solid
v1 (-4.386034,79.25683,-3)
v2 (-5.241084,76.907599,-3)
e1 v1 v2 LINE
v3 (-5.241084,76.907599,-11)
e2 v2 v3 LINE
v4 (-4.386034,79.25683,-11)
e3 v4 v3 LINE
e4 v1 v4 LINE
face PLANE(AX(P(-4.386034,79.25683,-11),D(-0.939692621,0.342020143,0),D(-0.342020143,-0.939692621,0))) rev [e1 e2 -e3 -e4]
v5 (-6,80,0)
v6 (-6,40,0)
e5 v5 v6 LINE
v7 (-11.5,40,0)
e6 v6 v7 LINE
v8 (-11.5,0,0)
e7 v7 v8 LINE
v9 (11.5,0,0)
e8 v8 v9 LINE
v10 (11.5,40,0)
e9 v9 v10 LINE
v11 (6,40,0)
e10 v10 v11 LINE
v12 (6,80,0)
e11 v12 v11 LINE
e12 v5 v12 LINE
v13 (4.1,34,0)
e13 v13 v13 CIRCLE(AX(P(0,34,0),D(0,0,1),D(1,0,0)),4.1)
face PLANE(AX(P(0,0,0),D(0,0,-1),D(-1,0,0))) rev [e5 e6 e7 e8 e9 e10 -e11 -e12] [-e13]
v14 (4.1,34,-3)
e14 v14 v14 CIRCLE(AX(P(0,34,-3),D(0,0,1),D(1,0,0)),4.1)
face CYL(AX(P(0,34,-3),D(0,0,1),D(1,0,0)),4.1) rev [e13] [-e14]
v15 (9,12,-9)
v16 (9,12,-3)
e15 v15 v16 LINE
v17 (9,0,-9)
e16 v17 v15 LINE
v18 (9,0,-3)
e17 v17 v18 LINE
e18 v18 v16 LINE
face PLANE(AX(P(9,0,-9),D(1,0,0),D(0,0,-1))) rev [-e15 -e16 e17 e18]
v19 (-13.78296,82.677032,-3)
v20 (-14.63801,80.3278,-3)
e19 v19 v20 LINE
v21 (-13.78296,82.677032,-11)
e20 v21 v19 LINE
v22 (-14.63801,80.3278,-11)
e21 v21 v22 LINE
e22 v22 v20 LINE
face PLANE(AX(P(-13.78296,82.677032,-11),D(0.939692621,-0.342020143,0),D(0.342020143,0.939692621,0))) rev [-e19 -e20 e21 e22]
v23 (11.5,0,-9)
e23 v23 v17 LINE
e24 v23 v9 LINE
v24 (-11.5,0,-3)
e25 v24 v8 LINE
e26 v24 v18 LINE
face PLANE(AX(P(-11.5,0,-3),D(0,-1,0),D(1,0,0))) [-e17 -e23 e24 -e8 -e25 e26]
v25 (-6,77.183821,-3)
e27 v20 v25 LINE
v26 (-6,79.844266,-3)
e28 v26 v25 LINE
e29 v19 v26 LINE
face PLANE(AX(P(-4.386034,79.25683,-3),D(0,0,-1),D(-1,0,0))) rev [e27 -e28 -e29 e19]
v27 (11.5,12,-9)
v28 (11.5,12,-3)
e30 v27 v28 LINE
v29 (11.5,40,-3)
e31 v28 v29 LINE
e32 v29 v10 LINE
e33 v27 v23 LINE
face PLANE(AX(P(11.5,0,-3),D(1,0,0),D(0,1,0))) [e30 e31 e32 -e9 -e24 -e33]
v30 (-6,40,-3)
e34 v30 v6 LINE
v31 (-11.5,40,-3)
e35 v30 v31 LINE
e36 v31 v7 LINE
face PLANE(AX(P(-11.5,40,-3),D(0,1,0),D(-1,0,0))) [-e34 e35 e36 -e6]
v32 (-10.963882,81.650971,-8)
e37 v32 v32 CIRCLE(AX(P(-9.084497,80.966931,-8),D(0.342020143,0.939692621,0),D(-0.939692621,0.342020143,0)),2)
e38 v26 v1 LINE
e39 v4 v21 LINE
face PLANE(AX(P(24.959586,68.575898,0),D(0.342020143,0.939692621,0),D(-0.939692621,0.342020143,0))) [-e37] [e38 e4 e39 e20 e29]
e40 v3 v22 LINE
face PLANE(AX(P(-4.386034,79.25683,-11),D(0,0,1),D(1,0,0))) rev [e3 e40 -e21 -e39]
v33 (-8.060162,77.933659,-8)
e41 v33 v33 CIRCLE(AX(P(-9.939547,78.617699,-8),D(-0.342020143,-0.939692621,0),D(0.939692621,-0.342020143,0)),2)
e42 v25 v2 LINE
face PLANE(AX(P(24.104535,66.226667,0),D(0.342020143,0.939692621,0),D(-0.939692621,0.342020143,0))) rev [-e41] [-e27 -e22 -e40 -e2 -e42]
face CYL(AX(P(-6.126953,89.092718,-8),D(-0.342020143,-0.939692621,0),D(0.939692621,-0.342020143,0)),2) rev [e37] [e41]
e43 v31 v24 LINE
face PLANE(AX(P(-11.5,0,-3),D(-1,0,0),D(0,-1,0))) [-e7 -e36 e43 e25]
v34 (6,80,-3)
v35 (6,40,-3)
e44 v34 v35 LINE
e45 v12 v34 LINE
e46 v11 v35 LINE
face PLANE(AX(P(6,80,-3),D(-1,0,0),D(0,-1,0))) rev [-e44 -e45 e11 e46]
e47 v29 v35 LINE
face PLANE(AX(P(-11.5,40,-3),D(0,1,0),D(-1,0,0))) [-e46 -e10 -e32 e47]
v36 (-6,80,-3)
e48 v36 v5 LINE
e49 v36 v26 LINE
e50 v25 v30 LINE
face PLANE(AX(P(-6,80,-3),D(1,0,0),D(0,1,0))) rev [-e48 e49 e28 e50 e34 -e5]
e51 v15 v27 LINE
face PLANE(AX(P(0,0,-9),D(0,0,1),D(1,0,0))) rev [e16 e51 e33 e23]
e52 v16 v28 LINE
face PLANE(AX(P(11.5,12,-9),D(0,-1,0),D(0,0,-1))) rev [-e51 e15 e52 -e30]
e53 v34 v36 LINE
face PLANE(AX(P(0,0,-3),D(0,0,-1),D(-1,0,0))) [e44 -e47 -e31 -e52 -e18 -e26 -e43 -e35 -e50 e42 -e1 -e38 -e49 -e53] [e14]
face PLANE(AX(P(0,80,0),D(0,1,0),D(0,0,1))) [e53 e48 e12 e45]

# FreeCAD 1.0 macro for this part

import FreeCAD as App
import Part
import Sketcher
from FreeCAD import Vector


def add_polygon(sketch, points):
    """Adds a closed chain of lines whose ends are joined by coincident constraints."""
    first, n = sketch.GeometryCount, len(points)
    for a, b in zip(points, points[1:] + points[:1]):
        sketch.addGeometry(Part.LineSegment(App.Vector(*a, 0), App.Vector(*b, 0)), False)
    for i in range(n):
        sketch.addConstraint(Sketcher.Constraint("Coincident", first + i, 2, first + (i + 1) % n, 1))

doc = App.newDocument("Part")
params = doc.addObject("Spreadsheet::Sheet", "Params")
for row, (alias, value) in enumerate([
    ("sketch1_width", "23 mm"),
    ("sketch1_height", "40 mm"),
    ("pad1_length", "3 mm"),
    ("sketch2_diameter", "8.2 mm"),
    ("pocket1_length", "3 mm"),
    ("sketch3_width", "12 mm"),
    ("sketch3_height", "3 mm"),
    ("pad2_length", "40 mm"),
    ("sketch4_height", "12 mm"),
    ("sketch4_width", "2.5 mm"),
    ("pad3_length", "6 mm"),
    ("sketch5_width", "8 mm"),
    ("sketch5_height", "10 mm"),
    ("pad4_length", "2.5 mm"),
    ("sketch6_diameter", "4 mm"),
], start=1):
    params.set(f"A{row}", alias)
    params.set(f"B{row}", "=" + value)
    params.setAlias(f"B{row}", alias)

body = doc.addObject("PartDesign::Body", "Body")

sketch1 = body.newObject("Sketcher::SketchObject", "Sketch")
sketch1.AttachmentSupport = (doc.getObject("XY_Plane"), [""])
sketch1.MapMode = "FlatFace"
add_polygon(sketch1, [(-11.5, 40), (-11.5, 0), (11.5, 0), (11.5, 40)])
sketch1.addConstraint(Sketcher.Constraint("Vertical", 0))
sketch1.addConstraint(Sketcher.Constraint("Horizontal", 1))
sketch1.addConstraint(Sketcher.Constraint("Vertical", 2))
sketch1.addConstraint(Sketcher.Constraint("Horizontal", 3))
sketch1.addConstraint(Sketcher.Constraint("Symmetric", 0, 2, 1, 2, -1, 1))
sketch1.addConstraint(Sketcher.Constraint("DistanceX", 1, 1, 1, 2, 23.0))
sketch1.addConstraint(Sketcher.Constraint("DistanceY", 0, 2, 0, 1, 40.0))
sketch1.setExpression("Constraints[9]", "Params.sketch1_width")
sketch1.setExpression("Constraints[10]", "Params.sketch1_height")
pad1 = body.newObject("PartDesign::Pad", "Pad")
pad1.Profile = sketch1
pad1.setExpression("Length", "Params.pad1_length")
pad1.Reversed = True

sketch2 = body.newObject("Sketcher::SketchObject", "Sketch001")
sketch2.AttachmentSupport = (doc.getObject("XY_Plane"), [""])
sketch2.MapMode = "FlatFace"
sketch2.addGeometry(Part.Circle(Vector(0, 34, 0), Vector(0, 0, 1), 4.1), False)
sketch2.addConstraint(Sketcher.Constraint("PointOnObject", 0, 3, -2))
sketch2.addConstraint(Sketcher.Constraint("Diameter", 0, 8.2))
sketch2.addConstraint(Sketcher.Constraint("DistanceY", -1, 1, 0, 3, 34.0))
sketch2.setExpression("Constraints[1]", "Params.sketch2_diameter")
pocket1 = body.newObject("PartDesign::Pocket", "Pocket")
pocket1.Profile = sketch2
pocket1.setExpression("Length", "Params.pocket1_length")

sketch3 = body.newObject("Sketcher::SketchObject", "Sketch002")
sketch3.AttachmentSupport = (doc.getObject("XZ_Plane"), [""])
sketch3.MapMode = "FlatFace"
sketch3.AttachmentOffset = App.Placement(Vector(0, 0, -40), App.Rotation())
add_polygon(sketch3, [(-6, -3), (-6, 0), (6, 0), (6, -3)])
sketch3.addConstraint(Sketcher.Constraint("Vertical", 0))
sketch3.addConstraint(Sketcher.Constraint("Horizontal", 1))
sketch3.addConstraint(Sketcher.Constraint("Vertical", 2))
sketch3.addConstraint(Sketcher.Constraint("Horizontal", 3))
sketch3.addConstraint(Sketcher.Constraint("Symmetric", 0, 2, 1, 2, -1, 1))
sketch3.addConstraint(Sketcher.Constraint("DistanceX", 1, 1, 1, 2, 12.0))
sketch3.addConstraint(Sketcher.Constraint("DistanceY", 0, 1, 0, 2, 3.0))
sketch3.setExpression("Constraints[9]", "Params.sketch3_width")
sketch3.setExpression("Constraints[10]", "Params.sketch3_height")
pad2 = body.newObject("PartDesign::Pad", "Pad001")
pad2.Profile = sketch3
pad2.setExpression("Length", "Params.pad2_length")
pad2.Reversed = True

sketch4 = body.newObject("Sketcher::SketchObject", "Sketch003")
sketch4.AttachmentSupport = (doc.getObject("XY_Plane"), [""])
sketch4.MapMode = "FlatFace"
sketch4.AttachmentOffset = App.Placement(Vector(0, 0, -3), App.Rotation())
add_polygon(sketch4, [(11.5, 12), (11.5, 0), (9, 0), (9, 12)])
sketch4.addConstraint(Sketcher.Constraint("Vertical", 0))
sketch4.addConstraint(Sketcher.Constraint("Horizontal", 1))
sketch4.addConstraint(Sketcher.Constraint("Vertical", 2))
sketch4.addConstraint(Sketcher.Constraint("Horizontal", 3))
sketch4.addConstraint(Sketcher.Constraint("PointOnObject", 0, 2, -1))
sketch4.addConstraint(Sketcher.Constraint("DistanceY", 0, 2, 0, 1, 12.0))
sketch4.addConstraint(Sketcher.Constraint("DistanceX", 1, 2, 1, 1, 2.5))
sketch4.addConstraint(Sketcher.Constraint("DistanceX", -1, 1, 1, 2, 9.0))
sketch4.setExpression("Constraints[9]", "Params.sketch4_height")
sketch4.setExpression("Constraints[10]", "Params.sketch4_width")
pad3 = body.newObject("PartDesign::Pad", "Pad002")
pad3.Profile = sketch4
pad3.setExpression("Length", "Params.pad3_length")
pad3.Reversed = True

sketch5 = body.newObject("Sketcher::SketchObject", "Sketch004")
sketch5.Placement = App.Placement(Vector(24.104535, 66.226667, 0), App.Rotation(Vector(0, 0, -1), Vector(-0.939692621, 0.342020143, 0), Vector(0.342020143, 0.939692621, 0), "ZXY"))
add_polygon(sketch5, [(3, 41.228956), (3, 31.228956), (11, 31.228956), (11, 41.228956)])
sketch5.addConstraint(Sketcher.Constraint("Vertical", 0))
sketch5.addConstraint(Sketcher.Constraint("Horizontal", 1))
sketch5.addConstraint(Sketcher.Constraint("Vertical", 2))
sketch5.addConstraint(Sketcher.Constraint("Horizontal", 3))
sketch5.addConstraint(Sketcher.Constraint("DistanceX", 1, 1, 1, 2, 8.0))
sketch5.addConstraint(Sketcher.Constraint("DistanceY", 0, 2, 0, 1, 10.0))
sketch5.addConstraint(Sketcher.Constraint("DistanceX", -1, 1, 0, 2, 3.0))
sketch5.addConstraint(Sketcher.Constraint("DistanceY", -1, 1, 0, 2, 31.228956))
sketch5.setExpression("Constraints[8]", "Params.sketch5_width")
sketch5.setExpression("Constraints[9]", "Params.sketch5_height")
pad4 = body.newObject("PartDesign::Pad", "Pad003")
pad4.Profile = sketch5
pad4.setExpression("Length", "Params.pad4_length")

sketch6 = body.newObject("Sketcher::SketchObject", "Sketch005")
sketch6.Placement = App.Placement(Vector(24.104535, 66.226667, 0), App.Rotation(Vector(0.939692621, -0.342020143, 0), Vector(0, 0, 1), Vector(-0.342020143, -0.939692621, 0), "ZXY"))
sketch6.addGeometry(Part.Circle(Vector(-36.228956, -8, 0), Vector(0, 0, 1), 2), False)
sketch6.addConstraint(Sketcher.Constraint("Diameter", 0, 4.0))
sketch6.addConstraint(Sketcher.Constraint("DistanceY", 0, 3, -1, 1, 8.0))
sketch6.addConstraint(Sketcher.Constraint("DistanceX", 0, 3, -1, 1, 36.228956))
sketch6.setExpression("Constraints[0]", "Params.sketch6_diameter")
pocket2 = body.newObject("PartDesign::Pocket", "Pocket001")
pocket2.Profile = sketch6
pocket2.Type = "ThroughAll"

doc.recompute()
